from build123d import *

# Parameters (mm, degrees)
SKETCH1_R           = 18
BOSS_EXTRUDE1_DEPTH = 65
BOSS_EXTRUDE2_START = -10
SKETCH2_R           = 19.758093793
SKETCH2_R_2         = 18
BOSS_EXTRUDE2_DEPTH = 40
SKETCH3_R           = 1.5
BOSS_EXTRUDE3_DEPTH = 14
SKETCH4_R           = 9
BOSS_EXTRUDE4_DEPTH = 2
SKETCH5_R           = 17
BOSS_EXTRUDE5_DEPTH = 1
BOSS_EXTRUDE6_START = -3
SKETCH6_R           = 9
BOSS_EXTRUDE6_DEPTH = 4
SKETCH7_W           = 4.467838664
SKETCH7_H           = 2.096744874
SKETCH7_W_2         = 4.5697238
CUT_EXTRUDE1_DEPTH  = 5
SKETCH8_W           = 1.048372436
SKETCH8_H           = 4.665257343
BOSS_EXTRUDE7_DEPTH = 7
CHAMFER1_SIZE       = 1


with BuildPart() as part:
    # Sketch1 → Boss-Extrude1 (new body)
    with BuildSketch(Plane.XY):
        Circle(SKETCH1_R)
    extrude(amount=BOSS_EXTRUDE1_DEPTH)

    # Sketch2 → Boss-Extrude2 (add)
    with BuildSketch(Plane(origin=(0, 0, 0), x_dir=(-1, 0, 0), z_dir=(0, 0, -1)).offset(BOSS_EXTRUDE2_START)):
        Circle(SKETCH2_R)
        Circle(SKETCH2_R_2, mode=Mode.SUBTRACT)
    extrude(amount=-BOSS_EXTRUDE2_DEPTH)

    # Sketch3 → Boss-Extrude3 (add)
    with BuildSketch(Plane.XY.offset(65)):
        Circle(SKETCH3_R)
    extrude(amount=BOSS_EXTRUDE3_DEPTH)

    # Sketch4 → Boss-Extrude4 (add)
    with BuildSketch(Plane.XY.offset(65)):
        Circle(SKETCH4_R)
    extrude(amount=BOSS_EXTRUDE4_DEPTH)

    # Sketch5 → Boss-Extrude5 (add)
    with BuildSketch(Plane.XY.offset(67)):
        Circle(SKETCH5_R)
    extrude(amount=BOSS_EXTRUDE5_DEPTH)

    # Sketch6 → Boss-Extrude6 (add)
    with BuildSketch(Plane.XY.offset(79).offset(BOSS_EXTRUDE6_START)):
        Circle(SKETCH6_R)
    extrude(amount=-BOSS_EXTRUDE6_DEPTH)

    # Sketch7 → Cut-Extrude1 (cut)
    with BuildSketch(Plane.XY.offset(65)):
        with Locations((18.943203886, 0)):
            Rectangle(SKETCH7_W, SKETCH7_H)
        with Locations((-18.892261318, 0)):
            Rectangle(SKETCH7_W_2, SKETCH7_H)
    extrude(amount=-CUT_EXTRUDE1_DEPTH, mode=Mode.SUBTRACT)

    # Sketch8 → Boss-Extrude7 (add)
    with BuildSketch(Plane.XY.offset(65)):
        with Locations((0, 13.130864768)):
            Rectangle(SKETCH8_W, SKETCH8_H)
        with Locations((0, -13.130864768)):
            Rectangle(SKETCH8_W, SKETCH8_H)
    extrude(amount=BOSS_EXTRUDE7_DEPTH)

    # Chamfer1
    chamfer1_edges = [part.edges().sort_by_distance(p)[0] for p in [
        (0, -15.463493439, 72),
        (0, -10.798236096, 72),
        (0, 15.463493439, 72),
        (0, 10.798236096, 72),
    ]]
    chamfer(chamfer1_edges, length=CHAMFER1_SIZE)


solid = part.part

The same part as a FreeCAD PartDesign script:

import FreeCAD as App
import Part
import Sketcher

V = App.Vector


def edges_at(feature, points):
    """Names of the edges that pass closest to the given points."""
    edges = feature.Shape.Edges
    near = lambda p: min(range(len(edges)), key=lambda i: edges[i].distToShape(Part.Vertex(*p))[0])
    return sorted({f"Edge{near(p) + 1}" for p in points})


def add_polygon(sketch, points):
    """Adds a closed chain of lines whose ends are joined by coincident constraints."""
    first, n = sketch.GeometryCount, len(points)
    for a, b in zip(points, points[1:] + points[:1]):
        sketch.addGeometry(Part.LineSegment(App.Vector(*a, 0), App.Vector(*b, 0)), False)
    for i in range(n):
        sketch.addConstraint(Sketcher.Constraint("Coincident", first + i, 2, first + (i + 1) % n, 1))

doc = App.newDocument("Part")
body = doc.addObject("PartDesign::Body", "Body")

# Sketch on XY plane
sketch1 = body.newObject("Sketcher::SketchObject", "Sketch")
sketch1.AttachmentSupport = (doc.getObject("XY_Plane"), [""])
sketch1.MapMode = "FlatFace"
sketch1.addGeometry(Part.Circle(V(0, 0, 0), V(0, 0, 1), 18), False)
sketch1.addConstraint([
    Sketcher.Constraint("Coincident", 0, 3, -1, 1),
    Sketcher.Constraint("Diameter", 0, 36.0),
])
pad1 = body.newObject("PartDesign::Pad", "Pad")
pad1.Profile = sketch1
pad1.Length = 65

# Sketch on XY plane
sketch2 = body.newObject("Sketcher::SketchObject", "Sketch001")
sketch2.AttachmentSupport = (doc.getObject("XY_Plane"), [""])
sketch2.MapMode = "FlatFace"
sketch2.AttachmentOffset = App.Placement(V(0, 0, 10), App.Rotation())
sketch2.addGeometry([
    Part.Circle(V(0, 0, 0), V(0, 0, 1), 20),
    Part.Circle(V(0, 0, 0), V(0, 0, 1), 18),
], False)
sketch2.addConstraint([
    Sketcher.Constraint("Coincident", 0, 3, -1, 1),
    Sketcher.Constraint("Coincident", 1, 3, -1, 1),
    Sketcher.Constraint("Diameter", 1, 36.0),
    Sketcher.Constraint("Diameter", 0, 39.516188),
])
pad2 = body.newObject("PartDesign::Pad", "Pad001")
pad2.Profile = sketch2
pad2.Length = 40

# Sketch on XY plane
sketch3 = body.newObject("Sketcher::SketchObject", "Sketch002")
sketch3.AttachmentSupport = (doc.getObject("XY_Plane"), [""])
sketch3.MapMode = "FlatFace"
sketch3.AttachmentOffset = App.Placement(V(0, 0, 65), App.Rotation())
sketch3.addGeometry(Part.Circle(V(0, 0, 0), V(0, 0, 1), 1.5), False)
sketch3.addConstraint([
    Sketcher.Constraint("Coincident", 0, 3, -1, 1),
    Sketcher.Constraint("Diameter", 0, 3.0),
])
pad3 = body.newObject("PartDesign::Pad", "Pad002")
pad3.Profile = sketch3
pad3.Length = 14

# Sketch on XY plane
sketch4 = body.newObject("Sketcher::SketchObject", "Sketch003")
sketch4.AttachmentSupport = (doc.getObject("XY_Plane"), [""])
sketch4.MapMode = "FlatFace"
sketch4.AttachmentOffset = App.Placement(V(0, 0, 65), App.Rotation())
sketch4.addGeometry(Part.Circle(V(0, 0, 0), V(0, 0, 1), 9), False)
sketch4.addConstraint([
    Sketcher.Constraint("Coincident", 0, 3, -1, 1),
    Sketcher.Constraint("Diameter", 0, 18.0),
])
pad4 = body.newObject("PartDesign::Pad", "Pad003")
pad4.Profile = sketch4
pad4.Length = 2

# Sketch on XY plane
sketch5 = body.newObject("Sketcher::SketchObject", "Sketch004")
sketch5.AttachmentSupport = (doc.getObject("XY_Plane"), [""])
sketch5.MapMode = "FlatFace"
sketch5.AttachmentOffset = App.Placement(V(0, 0, 67), App.Rotation())
sketch5.addGeometry(Part.Circle(V(0, 0, 0), V(0, 0, 1), 17), False)
sketch5.addConstraint([
    Sketcher.Constraint("Coincident", 0, 3, -1, 1),
    Sketcher.Constraint("Diameter", 0, 34.0),
])
pad5 = body.newObject("PartDesign::Pad", "Pad004")
pad5.Profile = sketch5
pad5.Length = 1

# Sketch on XY plane
sketch6 = body.newObject("Sketcher::SketchObject", "Sketch005")
sketch6.AttachmentSupport = (doc.getObject("XY_Plane"), [""])
sketch6.MapMode = "FlatFace"
sketch6.AttachmentOffset = App.Placement(V(0, 0, 76), App.Rotation())
sketch6.addGeometry(Part.Circle(V(0, 0, 0), V(0, 0, 1), 9), False)
sketch6.addConstraint([
    Sketcher.Constraint("Coincident", 0, 3, -1, 1),
    Sketcher.Constraint("Diameter", 0, 18.0),
])
pad6 = body.newObject("PartDesign::Pad", "Pad005")
pad6.Profile = sketch6
pad6.Length = 4
pad6.Reversed = True

# Sketch on XY plane
sketch7 = body.newObject("Sketcher::SketchObject", "Sketch006")
sketch7.AttachmentSupport = (doc.getObject("XY_Plane"), [""])
sketch7.MapMode = "FlatFace"
sketch7.AttachmentOffset = App.Placement(V(0, 0, 65), App.Rotation())
add_polygon(sketch7, [(16.7, 1), (16.7, -1), (21.2, -1), (21.2, 1)])  # lines 0-3
add_polygon(sketch7, [(-21.2, 1), (-21.2, -1), (-16.6, -1), (-16.6, 1)])  # lines 4-7
sketch7.addConstraint([
    Sketcher.Constraint("Vertical", 0),
    Sketcher.Constraint("Horizontal", 1),
    Sketcher.Constraint("Vertical", 2),
    Sketcher.Constraint("Horizontal", 3),
    Sketcher.Constraint("Vertical", 4),
    Sketcher.Constraint("Horizontal", 5),
    Sketcher.Constraint("Vertical", 6),
    Sketcher.Constraint("Horizontal", 7),
    Sketcher.Constraint("Symmetric", 2, 2, 4, 2, -1, 1),
    Sketcher.Constraint("Horizontal", 1, 2, 4, 2),
    Sketcher.Constraint("Horizontal", 3, 2, 6, 2),
    Sketcher.Constraint("DistanceX", 1, 1, 1, 2, 4.467839),
    Sketcher.Constraint("DistanceX", 5, 2, -1, 1, 16.607399),
    Sketcher.Constraint("DistanceX", 5, 1, 5, 2, 4.569724),
    Sketcher.Constraint("DistanceY", 0, 2, 0, 1, 2.096745),
])
pocket1 = body.newObject("PartDesign::Pocket", "Pocket")
pocket1.Profile = sketch7
pocket1.Length = 5

# Sketch on XY plane
sketch8 = body.newObject("Sketcher::SketchObject", "Sketch007")
sketch8.AttachmentSupport = (doc.getObject("XY_Plane"), [""])
sketch8.MapMode = "FlatFace"
sketch8.AttachmentOffset = App.Placement(V(0, 0, 65), App.Rotation())
add_polygon(sketch8, [(-0.5, 15.5), (-0.5, 10.8), (0.5, 10.8), (0.5, 15.5)])  # lines 0-3
add_polygon(sketch8, [(-0.5, -10.8), (-0.5, -15.5), (0.5, -15.5), (0.5, -10.8)])  # lines 4-7
sketch8.addConstraint([
    Sketcher.Constraint("Vertical", 0),
    Sketcher.Constraint("Horizontal", 1),
    Sketcher.Constraint("Vertical", 2),
    Sketcher.Constraint("Horizontal", 3),
    Sketcher.Constraint("Vertical", 4),
    Sketcher.Constraint("Horizontal", 5),
    Sketcher.Constraint("Vertical", 6),
    Sketcher.Constraint("Horizontal", 7),
    Sketcher.Constraint("Symmetric", 2, 2, 4, 2, -1, 1),
    Sketcher.Constraint("Symmetric", 0, 2, 6, 2, -1, 1),
    Sketcher.Constraint("Vertical", 3, 2, 4, 2),
    Sketcher.Constraint("DistanceX", 1, 1, 1, 2, 1.048372),
    Sketcher.Constraint("DistanceY", 0, 2, 0, 1, 4.665257),
    Sketcher.Constraint("DistanceY", 4, 2, 0, 2, 26.26173),
])
pad7 = body.newObject("PartDesign::Pad", "Pad006")
pad7.Profile = sketch8
pad7.Length = 7
doc.recompute()

chamfer = body.newObject("PartDesign::Chamfer", "Chamfer")
chamfer.Base = (pad7, edges_at(pad7, [
    (0, -15.463, 72),
    (0, -10.798, 72),
    (0, 15.463, 72),
    (0, 10.798, 72),
]))
chamfer.Size = 1

doc.recompute()
